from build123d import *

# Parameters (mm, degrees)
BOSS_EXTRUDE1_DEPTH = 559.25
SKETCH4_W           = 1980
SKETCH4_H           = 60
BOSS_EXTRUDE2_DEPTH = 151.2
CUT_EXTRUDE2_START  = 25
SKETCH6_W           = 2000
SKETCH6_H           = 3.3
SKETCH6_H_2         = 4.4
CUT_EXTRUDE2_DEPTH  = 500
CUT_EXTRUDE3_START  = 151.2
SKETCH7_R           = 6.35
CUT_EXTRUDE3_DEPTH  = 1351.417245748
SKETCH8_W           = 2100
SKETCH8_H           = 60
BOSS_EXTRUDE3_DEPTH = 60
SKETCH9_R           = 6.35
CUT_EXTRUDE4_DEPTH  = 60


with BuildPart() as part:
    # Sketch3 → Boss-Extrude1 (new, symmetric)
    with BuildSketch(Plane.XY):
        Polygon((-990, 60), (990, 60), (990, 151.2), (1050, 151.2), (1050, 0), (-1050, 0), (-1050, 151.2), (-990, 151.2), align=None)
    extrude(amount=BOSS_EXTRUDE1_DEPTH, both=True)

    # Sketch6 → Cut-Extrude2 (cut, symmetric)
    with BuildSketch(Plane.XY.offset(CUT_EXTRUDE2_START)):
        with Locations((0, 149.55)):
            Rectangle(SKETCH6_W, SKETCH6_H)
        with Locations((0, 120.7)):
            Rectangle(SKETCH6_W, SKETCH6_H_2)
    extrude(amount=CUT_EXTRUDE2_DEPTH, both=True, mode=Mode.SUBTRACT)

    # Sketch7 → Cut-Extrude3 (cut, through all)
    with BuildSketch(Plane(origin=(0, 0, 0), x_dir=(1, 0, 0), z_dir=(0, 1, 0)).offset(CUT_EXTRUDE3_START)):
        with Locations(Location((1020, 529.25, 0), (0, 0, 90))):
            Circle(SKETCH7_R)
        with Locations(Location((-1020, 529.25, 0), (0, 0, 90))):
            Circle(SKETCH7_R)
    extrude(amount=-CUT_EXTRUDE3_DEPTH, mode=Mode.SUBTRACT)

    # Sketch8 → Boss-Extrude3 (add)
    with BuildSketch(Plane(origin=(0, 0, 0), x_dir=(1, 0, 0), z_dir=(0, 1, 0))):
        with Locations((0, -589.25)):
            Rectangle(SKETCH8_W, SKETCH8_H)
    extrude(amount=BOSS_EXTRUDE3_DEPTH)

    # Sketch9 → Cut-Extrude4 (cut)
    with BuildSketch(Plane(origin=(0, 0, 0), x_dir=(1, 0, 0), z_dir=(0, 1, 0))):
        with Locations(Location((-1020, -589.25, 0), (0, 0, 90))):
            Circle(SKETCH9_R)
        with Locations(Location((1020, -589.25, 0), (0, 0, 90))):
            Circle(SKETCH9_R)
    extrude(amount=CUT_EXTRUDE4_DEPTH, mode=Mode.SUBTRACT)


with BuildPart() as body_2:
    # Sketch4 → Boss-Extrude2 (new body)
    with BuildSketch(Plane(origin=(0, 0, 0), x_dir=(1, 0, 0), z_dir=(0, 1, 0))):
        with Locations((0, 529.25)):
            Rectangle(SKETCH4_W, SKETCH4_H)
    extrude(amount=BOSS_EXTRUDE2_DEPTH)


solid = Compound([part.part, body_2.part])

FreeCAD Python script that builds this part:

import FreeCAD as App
import Part
import Sketcher
from FreeCAD import Vector

doc = App.newDocument("Part")
body = doc.addObject("PartDesign::Body", "Body")

sketch1 = doc.addObject("Sketcher::SketchObject", "Sketch")
body.addObject(sketch1)
sketch1.AttachmentSupport = (doc.XY_Plane, [""])
sketch1.MapMode = "FlatFace"
sketch1.addGeometry(Part.LineSegment(Vector(990, 60, 0), Vector(-990, 60, 0)), False)
sketch1.addGeometry(Part.LineSegment(Vector(-990, 60, 0), Vector(-990, 151, 0)), False)
sketch1.addGeometry(Part.LineSegment(Vector(-990, 151, 0), Vector(-1050, 151, 0)), False)
sketch1.addGeometry(Part.LineSegment(Vector(-1050, 151, 0), Vector(-1050, 0, 0)), False)
sketch1.addGeometry(Part.LineSegment(Vector(-1050, 0, 0), Vector(1050, 0, 0)), False)
sketch1.addGeometry(Part.LineSegment(Vector(1050, 0, 0), Vector(1050, 151, 0)), False)
sketch1.addGeometry(Part.LineSegment(Vector(1050, 151, 0), Vector(990, 151, 0)), False)
sketch1.addGeometry(Part.LineSegment(Vector(990, 151, 0), Vector(990, 60, 0)), False)
sketch1.addConstraint(Sketcher.Constraint("Coincident", 0, 2, 1, 1))
sketch1.addConstraint(Sketcher.Constraint("Coincident", 1, 2, 2, 1))
sketch1.addConstraint(Sketcher.Constraint("Coincident", 2, 2, 3, 1))
sketch1.addConstraint(Sketcher.Constraint("Coincident", 3, 2, 4, 1))
sketch1.addConstraint(Sketcher.Constraint("Coincident", 4, 2, 5, 1))
sketch1.addConstraint(Sketcher.Constraint("Coincident", 5, 2, 6, 1))
sketch1.addConstraint(Sketcher.Constraint("Coincident", 6, 2, 7, 1))
sketch1.addConstraint(Sketcher.Constraint("Coincident", 7, 2, 0, 1))
sketch1.addConstraint(Sketcher.Constraint("Horizontal", 0))
sketch1.addConstraint(Sketcher.Constraint("Vertical", 1))
sketch1.addConstraint(Sketcher.Constraint("Horizontal", 2))
sketch1.addConstraint(Sketcher.Constraint("Vertical", 3))
sketch1.addConstraint(Sketcher.Constraint("Horizontal", 4))
sketch1.addConstraint(Sketcher.Constraint("Vertical", 5))
sketch1.addConstraint(Sketcher.Constraint("Horizontal", 6))
sketch1.addConstraint(Sketcher.Constraint("Vertical", 7))
sketch1.addConstraint(Sketcher.Constraint("Symmetric", 3, 2, 4, 2, -1, 1))
sketch1.addConstraint(Sketcher.Constraint("Symmetric", 1, 2, 6, 2, -2))
sketch1.addConstraint(Sketcher.Constraint("DistanceX", 0, 2, 0, 1, 1980.0))
sketch1.addConstraint(Sketcher.Constraint("DistanceX", 2, 2, 2, 1, 60.0))
sketch1.addConstraint(Sketcher.Constraint("DistanceY", 1, 1, 1, 2, 91.2))
sketch1.addConstraint(Sketcher.Constraint("DistanceY", 3, 2, 3, 1, 151.2))
pad1 = doc.addObject("PartDesign::Pad", "Pad")
body.addObject(pad1)
pad1.Profile = sketch1
pad1.Length = 1118.5
pad1.Midplane = True

sketch2 = doc.addObject("Sketcher::SketchObject", "Sketch001")
body.addObject(sketch2)
sketch2.AttachmentSupport = (doc.XY_Plane, [""])
sketch2.MapMode = "FlatFace"
sketch2.AttachmentOffset = App.Placement(Vector(0, 0, 25), App.Rotation())
sketch2.addGeometry(Part.LineSegment(Vector(-1000, 151.2, 0), Vector(-1000, 147.9, 0)), False)
sketch2.addGeometry(Part.LineSegment(Vector(-1000, 147.9, 0), Vector(1000, 147.9, 0)), False)
sketch2.addGeometry(Part.LineSegment(Vector(1000, 147.9, 0), Vector(1000, 151.2, 0)), False)
sketch2.addGeometry(Part.LineSegment(Vector(1000, 151.2, 0), Vector(-1000, 151.2, 0)), False)
sketch2.addGeometry(Part.LineSegment(Vector(-1000, 122.9, 0), Vector(-1000, 118.5, 0)), False)
sketch2.addGeometry(Part.LineSegment(Vector(-1000, 118.5, 0), Vector(1000, 118.5, 0)), False)
sketch2.addGeometry(Part.LineSegment(Vector(1000, 118.5, 0), Vector(1000, 122.9, 0)), False)
sketch2.addGeometry(Part.LineSegment(Vector(1000, 122.9, 0), Vector(-1000, 122.9, 0)), False)
sketch2.addConstraint(Sketcher.Constraint("Coincident", 0, 2, 1, 1))
sketch2.addConstraint(Sketcher.Constraint("Coincident", 1, 2, 2, 1))
sketch2.addConstraint(Sketcher.Constraint("Coincident", 2, 2, 3, 1))
sketch2.addConstraint(Sketcher.Constraint("Coincident", 3, 2, 0, 1))
sketch2.addConstraint(Sketcher.Constraint("Coincident", 4, 2, 5, 1))
sketch2.addConstraint(Sketcher.Constraint("Coincident", 5, 2, 6, 1))
sketch2.addConstraint(Sketcher.Constraint("Coincident", 6, 2, 7, 1))
sketch2.addConstraint(Sketcher.Constraint("Coincident", 7, 2, 4, 1))
sketch2.addConstraint(Sketcher.Constraint("Vertical", 0))
sketch2.addConstraint(Sketcher.Constraint("Horizontal", 1))
sketch2.addConstraint(Sketcher.Constraint("Vertical", 2))
sketch2.addConstraint(Sketcher.Constraint("Horizontal", 3))
sketch2.addConstraint(Sketcher.Constraint("Vertical", 4))
sketch2.addConstraint(Sketcher.Constraint("Horizontal", 5))
sketch2.addConstraint(Sketcher.Constraint("Vertical", 6))
sketch2.addConstraint(Sketcher.Constraint("Horizontal", 7))
sketch2.addConstraint(Sketcher.Constraint("Vertical", 3, 2, 4, 2))
sketch2.addConstraint(Sketcher.Constraint("Vertical", 2, 2, 5, 2))
sketch2.addConstraint(Sketcher.Constraint("DistanceX", 1, 1, 1, 2, 2000.0))
sketch2.addConstraint(Sketcher.Constraint("DistanceY", 0, 2, 0, 1, 3.3))
sketch2.addConstraint(Sketcher.Constraint("DistanceY", 4, 2, 4, 1, 4.4))
sketch2.addConstraint(Sketcher.Constraint("DistanceX", 0, 2, -1, 1, 1000.0))
sketch2.addConstraint(Sketcher.Constraint("DistanceY", 6, 2, 1, 2, 25.0))
sketch2.addConstraint(Sketcher.Constraint("DistanceY", -1, 1, 0, 2, 147.9))
pocket1 = doc.addObject("PartDesign::Pocket", "Pocket")
body.addObject(pocket1)
pocket1.Profile = sketch2
pocket1.Length = 1000
pocket1.Midplane = True

sketch3 = doc.addObject("Sketcher::SketchObject", "Sketch002")
body.addObject(sketch3)
sketch3.AttachmentSupport = (doc.XZ_Plane, [""])
sketch3.MapMode = "FlatFace"
sketch3.AttachmentOffset = App.Placement(Vector(0, 0, -151.2), App.Rotation())
sketch3.addGeometry(Part.Circle(Vector(1020, -529, 0), Vector(0, 0, 1), 6), False)
sketch3.addGeometry(Part.Circle(Vector(-1020, -529, 0), Vector(0, 0, 1), 6), False)
sketch3.addConstraint(Sketcher.Constraint("Equal", 0, 1))
sketch3.addConstraint(Sketcher.Constraint("Symmetric", 0, 3, 1, 3, -2))
sketch3.addConstraint(Sketcher.Constraint("Diameter", 0, 12.7))
sketch3.addConstraint(Sketcher.Constraint("DistanceX", -1, 1, 0, 3, 1020.0))
sketch3.addConstraint(Sketcher.Constraint("DistanceY", 0, 3, -1, 1, 529.25))
pocket2 = doc.addObject("PartDesign::Pocket", "Pocket001")
body.addObject(pocket2)
pocket2.Profile = sketch3
pocket2.Type = "ThroughAll"
pocket2.Reversed = True

sketch4 = doc.addObject("Sketcher::SketchObject", "Sketch003")
body.addObject(sketch4)
sketch4.AttachmentSupport = (doc.XZ_Plane, [""])
sketch4.MapMode = "FlatFace"
sketch4.addGeometry(Part.LineSegment(Vector(-1050, 559, 0), Vector(-1050, 619, 0)), False)
sketch4.addGeometry(Part.LineSegment(Vector(-1050, 619, 0), Vector(1050, 619, 0)), False)
sketch4.addGeometry(Part.LineSegment(Vector(1050, 619, 0), Vector(1050, 559, 0)), False)
sketch4.addGeometry(Part.LineSegment(Vector(1050, 559, 0), Vector(-1050, 559, 0)), False)
sketch4.addConstraint(Sketcher.Constraint("Coincident", 0, 2, 1, 1))
sketch4.addConstraint(Sketcher.Constraint("Coincident", 1, 2, 2, 1))
sketch4.addConstraint(Sketcher.Constraint("Coincident", 2, 2, 3, 1))
sketch4.addConstraint(Sketcher.Constraint("Coincident", 3, 2, 0, 1))
sketch4.addConstraint(Sketcher.Constraint("Vertical", 0))
sketch4.addConstraint(Sketcher.Constraint("Horizontal", 1))
sketch4.addConstraint(Sketcher.Constraint("Vertical", 2))
sketch4.addConstraint(Sketcher.Constraint("Horizontal", 3))
sketch4.addConstraint(Sketcher.Constraint("DistanceX", 1, 1, 1, 2, 2100.0))
sketch4.addConstraint(Sketcher.Constraint("DistanceY", 0, 1, 0, 2, 60.0))
sketch4.addConstraint(Sketcher.Constraint("DistanceX", 0, 2, -1, 1, 1050.0))
sketch4.addConstraint(Sketcher.Constraint("DistanceY", -1, 1, 0, 2, 619.25))
pad2 = doc.addObject("PartDesign::Pad", "Pad001")
body.addObject(pad2)
pad2.Profile = sketch4
pad2.Length = 60
pad2.Reversed = True

sketch5 = doc.addObject("Sketcher::SketchObject", "Sketch004")
body.addObject(sketch5)
sketch5.AttachmentSupport = (doc.XZ_Plane, [""])
sketch5.MapMode = "FlatFace"
sketch5.addGeometry(Part.Circle(Vector(-1020, 589, 0), Vector(0, 0, 1), 6), False)
sketch5.addGeometry(Part.Circle(Vector(1020, 589, 0), Vector(0, 0, 1), 6), False)
sketch5.addConstraint(Sketcher.Constraint("Equal", 0, 1))
sketch5.addConstraint(Sketcher.Constraint("Symmetric", 0, 3, 1, 3, -2))
sketch5.addConstraint(Sketcher.Constraint("Diameter", 0, 12.7))
sketch5.addConstraint(Sketcher.Constraint("DistanceX", 0, 3, -1, 1, 1020.0))
sketch5.addConstraint(Sketcher.Constraint("DistanceY", -1, 1, 0, 3, 589.25))
pocket3 = doc.addObject("PartDesign::Pocket", "Pocket002")
body.addObject(pocket3)
pocket3.Profile = sketch5
pocket3.Length = 60
body2 = doc.addObject("PartDesign::Body", "Body001")

sketch6 = doc.addObject("Sketcher::SketchObject", "Sketch005")
body2.addObject(sketch6)
sketch6.AttachmentSupport = (doc.getObject("XZ_Plane001"), [""])
sketch6.MapMode = "FlatFace"
sketch6.addGeometry(Part.LineSegment(Vector(-990, -559, 0), Vector(-990, -499, 0)), False)
sketch6.addGeometry(Part.LineSegment(Vector(-990, -499, 0), Vector(990, -499, 0)), False)
sketch6.addGeometry(Part.LineSegment(Vector(990, -499, 0), Vector(990, -559, 0)), False)
sketch6.addGeometry(Part.LineSegment(Vector(990, -559, 0), Vector(-990, -559, 0)), False)
sketch6.addConstraint(Sketcher.Constraint("Coincident", 0, 2, 1, 1))
sketch6.addConstraint(Sketcher.Constraint("Coincident", 1, 2, 2, 1))
sketch6.addConstraint(Sketcher.Constraint("Coincident", 2, 2, 3, 1))
sketch6.addConstraint(Sketcher.Constraint("Coincident", 3, 2, 0, 1))
sketch6.addConstraint(Sketcher.Constraint("Vertical", 0))
sketch6.addConstraint(Sketcher.Constraint("Horizontal", 1))
sketch6.addConstraint(Sketcher.Constraint("Vertical", 2))
sketch6.addConstraint(Sketcher.Constraint("Horizontal", 3))
sketch6.addConstraint(Sketcher.Constraint("DistanceX", 1, 1, 1, 2, 1980.0))
sketch6.addConstraint(Sketcher.Constraint("DistanceY", 0, 1, 0, 2, 60.0))
sketch6.addConstraint(Sketcher.Constraint("DistanceX", 0, 2, -1, 1, 990.0))
sketch6.addConstraint(Sketcher.Constraint("DistanceY", 0, 2, -1, 1, 499.25))
pad3 = doc.addObject("PartDesign::Pad", "Pad002")
body2.addObject(pad3)
pad3.Profile = sketch6
pad3.Length = 151.2
pad3.Reversed = True

doc.recompute()
